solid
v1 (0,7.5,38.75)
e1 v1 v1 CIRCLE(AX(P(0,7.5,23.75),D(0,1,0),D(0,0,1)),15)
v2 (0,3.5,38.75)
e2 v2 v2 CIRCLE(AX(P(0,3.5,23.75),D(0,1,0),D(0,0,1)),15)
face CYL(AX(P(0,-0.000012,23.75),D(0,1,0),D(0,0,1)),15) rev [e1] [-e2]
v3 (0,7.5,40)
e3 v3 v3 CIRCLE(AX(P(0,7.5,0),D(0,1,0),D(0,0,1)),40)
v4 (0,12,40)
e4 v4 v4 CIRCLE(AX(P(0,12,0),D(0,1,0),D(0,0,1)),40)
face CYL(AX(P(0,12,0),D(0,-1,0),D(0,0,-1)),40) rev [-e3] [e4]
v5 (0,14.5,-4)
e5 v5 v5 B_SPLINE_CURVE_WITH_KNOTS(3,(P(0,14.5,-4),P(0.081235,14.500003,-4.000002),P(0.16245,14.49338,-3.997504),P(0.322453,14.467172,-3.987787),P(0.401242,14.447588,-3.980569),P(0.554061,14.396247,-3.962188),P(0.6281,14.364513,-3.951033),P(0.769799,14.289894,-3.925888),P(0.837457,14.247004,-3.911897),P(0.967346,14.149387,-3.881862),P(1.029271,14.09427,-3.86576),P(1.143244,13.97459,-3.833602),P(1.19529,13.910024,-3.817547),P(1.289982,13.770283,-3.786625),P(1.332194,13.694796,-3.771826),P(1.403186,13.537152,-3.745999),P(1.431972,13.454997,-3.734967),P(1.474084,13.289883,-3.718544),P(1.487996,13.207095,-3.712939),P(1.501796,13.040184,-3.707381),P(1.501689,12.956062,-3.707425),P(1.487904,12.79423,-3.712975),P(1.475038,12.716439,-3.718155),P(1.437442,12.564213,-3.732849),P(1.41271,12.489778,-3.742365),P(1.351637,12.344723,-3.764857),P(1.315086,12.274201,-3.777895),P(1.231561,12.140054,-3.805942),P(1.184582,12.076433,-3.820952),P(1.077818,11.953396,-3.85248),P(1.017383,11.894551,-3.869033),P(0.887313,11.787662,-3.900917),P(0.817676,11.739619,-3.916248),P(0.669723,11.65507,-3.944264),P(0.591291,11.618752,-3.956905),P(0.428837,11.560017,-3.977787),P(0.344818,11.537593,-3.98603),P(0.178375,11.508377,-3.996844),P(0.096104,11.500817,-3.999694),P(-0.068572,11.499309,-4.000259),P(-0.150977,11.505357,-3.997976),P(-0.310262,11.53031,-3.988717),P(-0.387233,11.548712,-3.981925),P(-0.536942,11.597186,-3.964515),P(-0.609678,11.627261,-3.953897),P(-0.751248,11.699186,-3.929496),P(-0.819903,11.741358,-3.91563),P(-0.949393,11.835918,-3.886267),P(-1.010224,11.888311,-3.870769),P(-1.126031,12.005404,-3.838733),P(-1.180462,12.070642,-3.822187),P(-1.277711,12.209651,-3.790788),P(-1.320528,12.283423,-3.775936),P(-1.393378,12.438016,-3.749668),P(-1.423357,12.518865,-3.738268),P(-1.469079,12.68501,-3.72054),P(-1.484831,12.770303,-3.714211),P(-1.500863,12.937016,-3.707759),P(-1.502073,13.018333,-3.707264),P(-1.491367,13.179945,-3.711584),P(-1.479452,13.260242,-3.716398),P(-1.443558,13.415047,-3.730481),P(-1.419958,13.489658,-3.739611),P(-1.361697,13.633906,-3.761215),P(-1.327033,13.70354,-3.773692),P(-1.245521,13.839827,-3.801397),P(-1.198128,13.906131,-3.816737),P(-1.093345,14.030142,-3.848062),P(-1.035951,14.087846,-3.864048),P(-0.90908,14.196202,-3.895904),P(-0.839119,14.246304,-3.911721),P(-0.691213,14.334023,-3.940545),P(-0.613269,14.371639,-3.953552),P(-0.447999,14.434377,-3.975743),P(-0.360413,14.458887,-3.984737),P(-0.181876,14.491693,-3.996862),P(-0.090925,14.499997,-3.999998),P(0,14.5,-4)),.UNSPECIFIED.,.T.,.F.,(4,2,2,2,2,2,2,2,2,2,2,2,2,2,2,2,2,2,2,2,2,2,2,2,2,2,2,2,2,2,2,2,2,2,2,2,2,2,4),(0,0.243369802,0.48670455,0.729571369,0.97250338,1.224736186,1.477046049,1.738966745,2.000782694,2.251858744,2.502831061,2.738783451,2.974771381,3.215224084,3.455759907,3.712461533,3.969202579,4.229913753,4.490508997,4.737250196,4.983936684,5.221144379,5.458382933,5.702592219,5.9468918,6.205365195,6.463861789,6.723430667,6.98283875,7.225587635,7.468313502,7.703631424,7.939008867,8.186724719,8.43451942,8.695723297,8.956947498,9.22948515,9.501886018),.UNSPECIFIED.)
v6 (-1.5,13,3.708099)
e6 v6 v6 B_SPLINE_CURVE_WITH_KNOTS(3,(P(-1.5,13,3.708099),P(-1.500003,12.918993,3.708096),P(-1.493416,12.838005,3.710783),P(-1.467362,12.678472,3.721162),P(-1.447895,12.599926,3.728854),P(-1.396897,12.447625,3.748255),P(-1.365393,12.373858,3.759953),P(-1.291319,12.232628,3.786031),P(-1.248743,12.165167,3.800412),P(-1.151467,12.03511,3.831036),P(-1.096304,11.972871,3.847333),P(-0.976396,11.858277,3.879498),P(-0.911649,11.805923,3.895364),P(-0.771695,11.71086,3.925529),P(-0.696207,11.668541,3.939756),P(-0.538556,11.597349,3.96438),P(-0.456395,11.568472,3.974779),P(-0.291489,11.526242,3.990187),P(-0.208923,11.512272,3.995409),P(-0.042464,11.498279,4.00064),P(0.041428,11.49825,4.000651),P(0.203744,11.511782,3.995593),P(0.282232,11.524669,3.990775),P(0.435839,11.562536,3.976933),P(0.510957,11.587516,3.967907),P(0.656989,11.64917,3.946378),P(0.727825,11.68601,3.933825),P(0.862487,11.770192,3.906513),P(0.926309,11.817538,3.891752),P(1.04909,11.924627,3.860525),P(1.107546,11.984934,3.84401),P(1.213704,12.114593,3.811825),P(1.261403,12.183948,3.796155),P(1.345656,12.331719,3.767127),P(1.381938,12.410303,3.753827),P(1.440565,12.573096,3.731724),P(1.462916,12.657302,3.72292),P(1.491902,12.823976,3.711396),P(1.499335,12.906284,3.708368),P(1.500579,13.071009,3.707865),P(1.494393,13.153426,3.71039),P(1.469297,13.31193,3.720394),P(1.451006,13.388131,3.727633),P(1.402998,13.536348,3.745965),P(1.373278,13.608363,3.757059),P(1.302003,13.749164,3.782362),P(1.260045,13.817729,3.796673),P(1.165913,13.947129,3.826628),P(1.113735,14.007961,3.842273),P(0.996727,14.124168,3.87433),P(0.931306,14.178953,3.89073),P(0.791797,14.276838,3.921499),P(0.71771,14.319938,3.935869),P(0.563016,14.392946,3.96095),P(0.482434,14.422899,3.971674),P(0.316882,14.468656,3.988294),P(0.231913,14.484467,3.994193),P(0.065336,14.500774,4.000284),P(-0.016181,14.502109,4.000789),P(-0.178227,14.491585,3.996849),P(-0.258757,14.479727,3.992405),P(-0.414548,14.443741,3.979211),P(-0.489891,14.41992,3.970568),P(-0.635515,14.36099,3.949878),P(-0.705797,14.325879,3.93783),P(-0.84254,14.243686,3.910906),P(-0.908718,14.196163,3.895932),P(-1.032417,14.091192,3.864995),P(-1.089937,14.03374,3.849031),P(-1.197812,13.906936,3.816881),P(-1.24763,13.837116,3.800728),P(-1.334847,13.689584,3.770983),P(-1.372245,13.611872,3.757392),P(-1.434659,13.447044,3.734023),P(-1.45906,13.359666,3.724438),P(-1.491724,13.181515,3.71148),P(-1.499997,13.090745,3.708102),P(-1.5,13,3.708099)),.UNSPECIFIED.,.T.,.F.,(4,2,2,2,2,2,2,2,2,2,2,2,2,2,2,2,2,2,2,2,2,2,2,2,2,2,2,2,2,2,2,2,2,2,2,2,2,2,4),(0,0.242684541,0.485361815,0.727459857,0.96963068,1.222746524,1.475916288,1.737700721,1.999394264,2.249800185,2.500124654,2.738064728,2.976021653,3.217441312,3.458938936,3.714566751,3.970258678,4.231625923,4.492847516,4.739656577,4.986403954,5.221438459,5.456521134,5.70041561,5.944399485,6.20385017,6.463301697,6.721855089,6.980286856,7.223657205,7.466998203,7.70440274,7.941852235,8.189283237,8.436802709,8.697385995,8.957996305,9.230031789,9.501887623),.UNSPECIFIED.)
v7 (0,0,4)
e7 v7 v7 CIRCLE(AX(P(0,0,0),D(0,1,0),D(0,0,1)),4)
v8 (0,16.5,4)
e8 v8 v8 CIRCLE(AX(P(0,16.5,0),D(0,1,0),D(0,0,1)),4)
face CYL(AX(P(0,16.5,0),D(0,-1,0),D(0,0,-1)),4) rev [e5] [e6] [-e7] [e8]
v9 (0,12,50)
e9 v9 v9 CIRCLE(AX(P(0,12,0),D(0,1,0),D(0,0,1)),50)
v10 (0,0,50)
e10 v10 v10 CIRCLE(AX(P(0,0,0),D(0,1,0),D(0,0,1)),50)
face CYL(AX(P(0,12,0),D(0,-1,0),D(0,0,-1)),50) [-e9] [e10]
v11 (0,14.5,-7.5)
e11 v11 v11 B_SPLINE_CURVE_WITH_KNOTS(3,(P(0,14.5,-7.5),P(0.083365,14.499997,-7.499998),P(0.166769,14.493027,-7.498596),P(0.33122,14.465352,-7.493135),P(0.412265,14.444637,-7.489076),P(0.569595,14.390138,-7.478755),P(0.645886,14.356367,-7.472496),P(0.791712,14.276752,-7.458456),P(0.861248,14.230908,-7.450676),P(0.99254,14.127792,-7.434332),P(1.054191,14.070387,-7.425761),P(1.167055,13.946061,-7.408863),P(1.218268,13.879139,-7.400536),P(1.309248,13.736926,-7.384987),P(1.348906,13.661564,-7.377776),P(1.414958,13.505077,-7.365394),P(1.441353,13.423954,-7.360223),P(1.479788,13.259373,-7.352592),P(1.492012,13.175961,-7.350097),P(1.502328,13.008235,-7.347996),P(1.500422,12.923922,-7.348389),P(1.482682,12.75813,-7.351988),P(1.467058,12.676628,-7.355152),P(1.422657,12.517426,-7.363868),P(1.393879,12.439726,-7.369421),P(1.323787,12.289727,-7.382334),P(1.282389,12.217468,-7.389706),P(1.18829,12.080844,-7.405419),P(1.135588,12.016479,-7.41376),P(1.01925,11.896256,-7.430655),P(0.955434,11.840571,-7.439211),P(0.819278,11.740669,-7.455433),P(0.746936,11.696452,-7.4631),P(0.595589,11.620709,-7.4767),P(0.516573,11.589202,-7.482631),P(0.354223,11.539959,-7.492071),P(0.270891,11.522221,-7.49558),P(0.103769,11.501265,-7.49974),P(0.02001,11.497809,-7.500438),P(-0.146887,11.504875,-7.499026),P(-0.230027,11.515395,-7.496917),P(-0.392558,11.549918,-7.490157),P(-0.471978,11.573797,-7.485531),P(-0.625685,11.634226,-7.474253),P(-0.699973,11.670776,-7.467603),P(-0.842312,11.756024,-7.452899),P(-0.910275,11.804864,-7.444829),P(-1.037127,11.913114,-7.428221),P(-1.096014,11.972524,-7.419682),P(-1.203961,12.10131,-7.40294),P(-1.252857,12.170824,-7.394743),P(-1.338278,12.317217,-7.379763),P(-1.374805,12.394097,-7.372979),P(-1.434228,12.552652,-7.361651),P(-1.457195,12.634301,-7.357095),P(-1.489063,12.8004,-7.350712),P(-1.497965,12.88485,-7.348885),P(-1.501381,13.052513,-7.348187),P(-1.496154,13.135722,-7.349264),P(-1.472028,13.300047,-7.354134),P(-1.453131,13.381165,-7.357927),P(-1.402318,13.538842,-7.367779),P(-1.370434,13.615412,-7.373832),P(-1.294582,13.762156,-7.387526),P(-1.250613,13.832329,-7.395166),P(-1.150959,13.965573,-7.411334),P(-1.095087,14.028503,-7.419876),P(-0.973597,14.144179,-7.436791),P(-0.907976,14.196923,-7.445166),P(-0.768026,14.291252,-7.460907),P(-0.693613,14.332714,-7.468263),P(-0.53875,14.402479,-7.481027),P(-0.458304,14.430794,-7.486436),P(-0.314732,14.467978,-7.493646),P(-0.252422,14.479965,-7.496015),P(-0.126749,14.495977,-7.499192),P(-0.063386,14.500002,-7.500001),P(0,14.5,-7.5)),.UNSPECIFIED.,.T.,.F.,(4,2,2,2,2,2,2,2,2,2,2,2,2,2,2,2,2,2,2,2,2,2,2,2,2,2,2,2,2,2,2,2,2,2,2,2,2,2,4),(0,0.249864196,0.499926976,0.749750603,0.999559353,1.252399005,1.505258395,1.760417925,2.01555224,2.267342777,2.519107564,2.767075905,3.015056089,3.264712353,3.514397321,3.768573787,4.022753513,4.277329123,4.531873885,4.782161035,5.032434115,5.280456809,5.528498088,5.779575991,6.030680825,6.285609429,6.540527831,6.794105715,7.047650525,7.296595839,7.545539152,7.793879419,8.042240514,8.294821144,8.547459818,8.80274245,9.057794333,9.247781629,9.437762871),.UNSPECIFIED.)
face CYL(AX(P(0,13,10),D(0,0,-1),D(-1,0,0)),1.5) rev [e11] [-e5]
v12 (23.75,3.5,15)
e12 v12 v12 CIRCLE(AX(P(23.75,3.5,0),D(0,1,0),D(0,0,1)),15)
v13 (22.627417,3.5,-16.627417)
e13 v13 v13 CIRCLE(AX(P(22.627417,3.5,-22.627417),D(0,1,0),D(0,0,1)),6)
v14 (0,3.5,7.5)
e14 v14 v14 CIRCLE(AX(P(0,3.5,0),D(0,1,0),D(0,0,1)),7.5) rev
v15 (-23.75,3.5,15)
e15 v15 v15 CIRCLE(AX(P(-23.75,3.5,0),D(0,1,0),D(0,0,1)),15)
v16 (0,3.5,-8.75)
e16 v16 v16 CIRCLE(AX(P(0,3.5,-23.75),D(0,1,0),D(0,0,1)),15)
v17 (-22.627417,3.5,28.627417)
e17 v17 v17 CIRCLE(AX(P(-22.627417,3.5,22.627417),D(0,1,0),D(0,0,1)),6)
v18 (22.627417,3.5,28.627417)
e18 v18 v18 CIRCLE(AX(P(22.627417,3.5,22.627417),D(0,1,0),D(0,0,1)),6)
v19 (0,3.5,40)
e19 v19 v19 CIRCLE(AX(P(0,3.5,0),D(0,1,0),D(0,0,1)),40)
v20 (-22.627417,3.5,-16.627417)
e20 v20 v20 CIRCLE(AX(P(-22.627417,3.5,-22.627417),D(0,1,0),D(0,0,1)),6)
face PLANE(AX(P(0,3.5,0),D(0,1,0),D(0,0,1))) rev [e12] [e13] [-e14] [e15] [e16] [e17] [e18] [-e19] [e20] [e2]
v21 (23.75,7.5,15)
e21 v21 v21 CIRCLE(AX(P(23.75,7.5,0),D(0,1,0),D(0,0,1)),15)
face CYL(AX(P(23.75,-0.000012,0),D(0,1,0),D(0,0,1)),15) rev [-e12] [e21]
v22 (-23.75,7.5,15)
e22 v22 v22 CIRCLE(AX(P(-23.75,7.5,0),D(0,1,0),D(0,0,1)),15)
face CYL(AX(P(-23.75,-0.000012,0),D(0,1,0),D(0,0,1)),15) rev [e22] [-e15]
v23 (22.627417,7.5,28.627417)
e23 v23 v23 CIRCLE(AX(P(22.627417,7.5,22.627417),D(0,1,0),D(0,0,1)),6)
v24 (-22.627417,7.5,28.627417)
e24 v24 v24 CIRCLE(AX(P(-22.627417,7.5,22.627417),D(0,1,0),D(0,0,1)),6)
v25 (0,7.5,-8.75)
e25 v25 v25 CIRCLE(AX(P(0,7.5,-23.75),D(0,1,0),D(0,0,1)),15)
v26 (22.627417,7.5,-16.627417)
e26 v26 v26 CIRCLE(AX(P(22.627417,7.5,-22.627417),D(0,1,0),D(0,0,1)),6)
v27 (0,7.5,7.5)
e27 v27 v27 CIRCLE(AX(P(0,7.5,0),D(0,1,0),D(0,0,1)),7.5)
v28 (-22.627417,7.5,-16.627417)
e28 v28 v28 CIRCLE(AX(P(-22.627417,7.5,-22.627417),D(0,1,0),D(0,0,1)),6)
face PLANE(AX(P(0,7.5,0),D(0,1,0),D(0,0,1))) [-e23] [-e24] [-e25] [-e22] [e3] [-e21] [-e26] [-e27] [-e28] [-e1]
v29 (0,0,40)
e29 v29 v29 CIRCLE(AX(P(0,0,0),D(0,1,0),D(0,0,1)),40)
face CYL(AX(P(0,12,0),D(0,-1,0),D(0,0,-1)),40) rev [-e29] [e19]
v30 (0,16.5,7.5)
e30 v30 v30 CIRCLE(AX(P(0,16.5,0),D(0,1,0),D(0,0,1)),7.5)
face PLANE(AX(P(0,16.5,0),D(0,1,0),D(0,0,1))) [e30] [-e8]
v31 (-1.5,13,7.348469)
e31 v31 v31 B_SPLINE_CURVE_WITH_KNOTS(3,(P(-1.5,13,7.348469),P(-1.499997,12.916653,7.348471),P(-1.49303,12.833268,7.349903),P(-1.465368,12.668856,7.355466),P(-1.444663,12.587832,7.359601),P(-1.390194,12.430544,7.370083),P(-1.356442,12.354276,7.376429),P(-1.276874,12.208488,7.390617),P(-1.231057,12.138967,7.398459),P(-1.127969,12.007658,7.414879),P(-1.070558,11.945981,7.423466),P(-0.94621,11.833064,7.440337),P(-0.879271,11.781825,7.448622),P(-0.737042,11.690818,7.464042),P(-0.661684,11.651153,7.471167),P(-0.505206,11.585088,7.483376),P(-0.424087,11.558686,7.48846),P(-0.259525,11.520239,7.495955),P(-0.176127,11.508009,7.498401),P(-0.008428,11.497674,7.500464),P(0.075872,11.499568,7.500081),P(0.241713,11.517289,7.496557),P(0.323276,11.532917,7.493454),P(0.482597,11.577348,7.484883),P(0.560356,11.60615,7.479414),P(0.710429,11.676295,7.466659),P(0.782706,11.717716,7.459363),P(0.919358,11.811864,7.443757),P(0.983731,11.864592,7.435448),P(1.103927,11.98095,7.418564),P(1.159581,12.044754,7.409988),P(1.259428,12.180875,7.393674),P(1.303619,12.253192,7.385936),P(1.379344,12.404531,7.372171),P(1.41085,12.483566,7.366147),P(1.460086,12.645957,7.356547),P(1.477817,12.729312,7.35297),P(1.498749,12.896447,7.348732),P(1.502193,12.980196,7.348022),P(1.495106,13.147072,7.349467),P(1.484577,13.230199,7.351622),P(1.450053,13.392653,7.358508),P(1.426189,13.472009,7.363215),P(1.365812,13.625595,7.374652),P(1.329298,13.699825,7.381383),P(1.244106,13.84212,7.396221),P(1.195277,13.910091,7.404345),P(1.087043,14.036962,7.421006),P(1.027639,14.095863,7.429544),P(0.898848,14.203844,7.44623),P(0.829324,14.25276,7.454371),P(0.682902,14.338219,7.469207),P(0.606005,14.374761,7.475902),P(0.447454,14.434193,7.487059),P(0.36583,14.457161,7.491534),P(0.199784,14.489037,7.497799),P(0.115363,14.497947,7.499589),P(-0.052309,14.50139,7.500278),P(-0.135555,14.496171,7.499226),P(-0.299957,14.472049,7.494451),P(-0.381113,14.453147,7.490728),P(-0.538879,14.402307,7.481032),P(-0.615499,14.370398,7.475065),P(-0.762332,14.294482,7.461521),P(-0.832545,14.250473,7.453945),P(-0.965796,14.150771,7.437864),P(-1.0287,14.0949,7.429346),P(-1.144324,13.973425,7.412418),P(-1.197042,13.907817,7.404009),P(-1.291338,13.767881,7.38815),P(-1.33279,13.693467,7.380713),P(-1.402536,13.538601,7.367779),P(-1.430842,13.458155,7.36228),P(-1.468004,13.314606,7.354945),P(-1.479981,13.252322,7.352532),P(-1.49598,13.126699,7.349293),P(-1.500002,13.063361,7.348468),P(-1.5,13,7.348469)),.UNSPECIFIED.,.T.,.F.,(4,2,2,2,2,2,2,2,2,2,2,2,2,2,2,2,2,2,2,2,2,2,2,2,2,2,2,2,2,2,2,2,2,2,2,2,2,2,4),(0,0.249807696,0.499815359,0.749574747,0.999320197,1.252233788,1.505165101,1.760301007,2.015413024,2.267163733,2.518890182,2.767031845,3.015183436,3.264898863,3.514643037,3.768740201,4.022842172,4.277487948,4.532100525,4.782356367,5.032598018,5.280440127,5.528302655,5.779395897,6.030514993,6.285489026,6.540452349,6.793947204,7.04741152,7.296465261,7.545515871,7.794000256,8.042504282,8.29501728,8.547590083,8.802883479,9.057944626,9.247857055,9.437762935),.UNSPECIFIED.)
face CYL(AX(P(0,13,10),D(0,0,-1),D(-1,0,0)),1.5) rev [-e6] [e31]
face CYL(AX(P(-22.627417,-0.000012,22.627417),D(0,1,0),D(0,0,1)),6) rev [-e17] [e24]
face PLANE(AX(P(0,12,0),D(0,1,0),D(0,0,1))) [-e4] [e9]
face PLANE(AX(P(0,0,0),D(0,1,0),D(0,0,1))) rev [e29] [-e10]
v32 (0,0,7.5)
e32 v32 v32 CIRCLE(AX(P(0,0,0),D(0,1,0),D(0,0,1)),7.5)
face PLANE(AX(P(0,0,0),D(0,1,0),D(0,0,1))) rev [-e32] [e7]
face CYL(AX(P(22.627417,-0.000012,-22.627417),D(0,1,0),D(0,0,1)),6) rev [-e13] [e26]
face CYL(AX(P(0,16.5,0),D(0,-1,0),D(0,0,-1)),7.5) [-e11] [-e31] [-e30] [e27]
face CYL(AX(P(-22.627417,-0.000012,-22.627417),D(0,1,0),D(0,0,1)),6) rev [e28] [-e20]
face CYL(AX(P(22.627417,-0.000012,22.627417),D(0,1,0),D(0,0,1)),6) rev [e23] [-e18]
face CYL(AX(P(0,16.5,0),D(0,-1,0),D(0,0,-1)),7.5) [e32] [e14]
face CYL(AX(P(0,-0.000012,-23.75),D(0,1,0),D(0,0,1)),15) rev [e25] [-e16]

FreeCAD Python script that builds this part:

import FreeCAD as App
import Part
import Sketcher
from FreeCAD import Vector

doc = App.newDocument("Part")
body = doc.addObject("PartDesign::Body", "Body")

# Sketch on XZ plane
sketch1 = body.newObject("Sketcher::SketchObject", "Sketch")
sketch1.AttachmentSupport = (doc.getObject("XZ_Plane"), [""])
sketch1.MapMode = "FlatFace"
sketch1.addGeometry(Part.Circle(Vector(0, 0, 0), Vector(0, 0, 1), 50), False)
sketch1.addGeometry(Part.Circle(Vector(0, 0, 0), Vector(0, 0, 1), 40), False)
sketch1.addConstraint(Sketcher.Constraint("Coincident", 0, 3, -1, 1))
sketch1.addConstraint(Sketcher.Constraint("Coincident", 1, 3, -1, 1))
sketch1.addConstraint(Sketcher.Constraint("Diameter", 0, 100.0))
sketch1.addConstraint(Sketcher.Constraint("Diameter", 1, 80.0))
pad1 = body.newObject("PartDesign::Pad", "Pad")
pad1.Profile = sketch1
pad1.Length = 12
pad1.Reversed = True
body2 = doc.addObject("PartDesign::Body", "Body001")

# Sketch on XZ plane
sketch2 = body2.newObject("Sketcher::SketchObject", "Sketch001")
sketch2.AttachmentSupport = (doc.getObject("XZ_Plane001"), [""])
sketch2.MapMode = "FlatFace"
sketch2.addGeometry(Part.Circle(Vector(0, 0, 0), Vector(0, 0, 1), 7.5), False)
sketch2.addGeometry(Part.Circle(Vector(0, 0, 0), Vector(0, 0, 1), 4), False)
sketch2.addConstraint(Sketcher.Constraint("Coincident", 0, 3, -1, 1))
sketch2.addConstraint(Sketcher.Constraint("Coincident", 1, 3, -1, 1))
sketch2.addConstraint(Sketcher.Constraint("Diameter", 0, 15.0))
sketch2.addConstraint(Sketcher.Constraint("Diameter", 1, 8.0))
pad2 = body2.newObject("PartDesign::Pad", "Pad001")
pad2.Profile = sketch2
pad2.Length = 16.5
pad2.Reversed = True
body.AllowCompound = True
doc.recompute()

boolean = body.newObject("PartDesign::Boolean", "Boolean")
boolean.Type = "Fuse"
boolean.addObjects([body2])

# Sketch on XZ plane
sketch3 = body.newObject("Sketcher::SketchObject", "Sketch002")
sketch3.AttachmentSupport = (doc.getObject("XZ_Plane"), [""])
sketch3.MapMode = "FlatFace"
sketch3.AttachmentOffset = App.Placement(Vector(0, 0, -3.5), App.Rotation())
sketch3.addGeometry(Part.Circle(Vector(0, 0, 0), Vector(0, 0, 1), 40), False)
sketch3.addGeometry(Part.Circle(Vector(0, 0, 0), Vector(0, 0, 1), 7.5), False)
sketch3.addConstraint(Sketcher.Constraint("Coincident", 0, 3, -1, 1))
sketch3.addConstraint(Sketcher.Constraint("Coincident", 1, 3, -1, 1))
sketch3.addConstraint(Sketcher.Constraint("Diameter", 0, 80.0))
sketch3.addConstraint(Sketcher.Constraint("Diameter", 1, 15.0))
pad3 = body.newObject("PartDesign::Pad", "Pad002")
pad3.Profile = sketch3
pad3.Length = 4
pad3.Reversed = True

# Sketch on XZ plane
sketch4 = body.newObject("Sketcher::SketchObject", "Sketch003")
sketch4.AttachmentSupport = (doc.getObject("XZ_Plane"), [""])
sketch4.MapMode = "FlatFace"
sketch4.addGeometry(Part.Circle(Vector(-23.75, 0, 0), Vector(0, 0, 1), 15), False)
sketch4.addGeometry(Part.Circle(Vector(0, 23.75, 0), Vector(0, 0, 1), 15), False)
sketch4.addGeometry(Part.Circle(Vector(-22.627417, 22.627417, 0), Vector(0, 0, 1), 6), False)
sketch4.addGeometry(Part.Circle(Vector(-22.627417, -22.627417, 0), Vector(0, 0, 1), 6), False)
sketch4.addGeometry(Part.Circle(Vector(0, -23.75, 0), Vector(0, 0, 1), 15), False)
sketch4.addGeometry(Part.Circle(Vector(23.75, 0, 0), Vector(0, 0, 1), 15), False)
sketch4.addGeometry(Part.Circle(Vector(22.627417, 22.627417, 0), Vector(0, 0, 1), 6), False)
sketch4.addGeometry(Part.Circle(Vector(22.627417, -22.627417, 0), Vector(0, 0, 1), 6), False)
sketch4.addConstraint(Sketcher.Constraint("Equal", 0, 1))
sketch4.addConstraint(Sketcher.Constraint("Equal", 2, 3))
sketch4.addConstraint(Sketcher.Constraint("Equal", 1, 4))
sketch4.addConstraint(Sketcher.Constraint("Equal", 4, 5))
sketch4.addConstraint(Sketcher.Constraint("Equal", 3, 6))
sketch4.addConstraint(Sketcher.Constraint("Equal", 6, 7))
sketch4.addConstraint(Sketcher.Constraint("Symmetric", 1, 3, 4, 3, -1, 1))
sketch4.addConstraint(Sketcher.Constraint("Symmetric", 0, 3, 5, 3, -1, 1))
sketch4.addConstraint(Sketcher.Constraint("Symmetric", 3, 3, 6, 3, -1, 1))
sketch4.addConstraint(Sketcher.Constraint("Symmetric", 2, 3, 7, 3, -1, 1))
sketch4.addConstraint(Sketcher.Constraint("Symmetric", 2, 3, 6, 3, -2))
sketch4.addConstraint(Sketcher.Constraint("PointOnObject", 0, 3, -1))
sketch4.addConstraint(Sketcher.Constraint("PointOnObject", 1, 3, -2))
sketch4.addConstraint(Sketcher.Constraint("Diameter", 0, 30.0))
sketch4.addConstraint(Sketcher.Constraint("Diameter", 2, 12.0))
sketch4.addConstraint(Sketcher.Constraint("DistanceY", 4, 3, 1, 3, 47.5))
sketch4.addConstraint(Sketcher.Constraint("DistanceX", 0, 3, 5, 3, 47.5))
sketch4.addConstraint(Sketcher.Constraint("DistanceX", 2, 3, -1, 1, 22.627417))
sketch4.addConstraint(Sketcher.Constraint("DistanceY", -1, 1, 2, 3, 22.627417))
pocket1 = body.newObject("PartDesign::Pocket", "Pocket")
pocket1.Profile = sketch4
pocket1.Type = "ThroughAll"
pocket1.Midplane = True

# Sketch on XY plane
sketch5 = body.newObject("Sketcher::SketchObject", "Sketch004")
sketch5.AttachmentSupport = (doc.getObject("XY_Plane"), [""])
sketch5.MapMode = "FlatFace"
sketch5.addGeometry(Part.Circle(Vector(0, 13, 0), Vector(0, 0, 1), 1.5), False)
sketch5.addConstraint(Sketcher.Constraint("PointOnObject", 0, 3, -2))
sketch5.addConstraint(Sketcher.Constraint("Diameter", 0, 3.0))
sketch5.addConstraint(Sketcher.Constraint("DistanceY", -1, 1, 0, 3, 13.0))
pocket2 = body.newObject("PartDesign::Pocket", "Pocket001")
pocket2.Profile = sketch5
pocket2.Type = "TwoLengths"
pocket2.Length = 10
pocket2.Length2 = 10
pocket2.Reversed = True

doc.recompute()
